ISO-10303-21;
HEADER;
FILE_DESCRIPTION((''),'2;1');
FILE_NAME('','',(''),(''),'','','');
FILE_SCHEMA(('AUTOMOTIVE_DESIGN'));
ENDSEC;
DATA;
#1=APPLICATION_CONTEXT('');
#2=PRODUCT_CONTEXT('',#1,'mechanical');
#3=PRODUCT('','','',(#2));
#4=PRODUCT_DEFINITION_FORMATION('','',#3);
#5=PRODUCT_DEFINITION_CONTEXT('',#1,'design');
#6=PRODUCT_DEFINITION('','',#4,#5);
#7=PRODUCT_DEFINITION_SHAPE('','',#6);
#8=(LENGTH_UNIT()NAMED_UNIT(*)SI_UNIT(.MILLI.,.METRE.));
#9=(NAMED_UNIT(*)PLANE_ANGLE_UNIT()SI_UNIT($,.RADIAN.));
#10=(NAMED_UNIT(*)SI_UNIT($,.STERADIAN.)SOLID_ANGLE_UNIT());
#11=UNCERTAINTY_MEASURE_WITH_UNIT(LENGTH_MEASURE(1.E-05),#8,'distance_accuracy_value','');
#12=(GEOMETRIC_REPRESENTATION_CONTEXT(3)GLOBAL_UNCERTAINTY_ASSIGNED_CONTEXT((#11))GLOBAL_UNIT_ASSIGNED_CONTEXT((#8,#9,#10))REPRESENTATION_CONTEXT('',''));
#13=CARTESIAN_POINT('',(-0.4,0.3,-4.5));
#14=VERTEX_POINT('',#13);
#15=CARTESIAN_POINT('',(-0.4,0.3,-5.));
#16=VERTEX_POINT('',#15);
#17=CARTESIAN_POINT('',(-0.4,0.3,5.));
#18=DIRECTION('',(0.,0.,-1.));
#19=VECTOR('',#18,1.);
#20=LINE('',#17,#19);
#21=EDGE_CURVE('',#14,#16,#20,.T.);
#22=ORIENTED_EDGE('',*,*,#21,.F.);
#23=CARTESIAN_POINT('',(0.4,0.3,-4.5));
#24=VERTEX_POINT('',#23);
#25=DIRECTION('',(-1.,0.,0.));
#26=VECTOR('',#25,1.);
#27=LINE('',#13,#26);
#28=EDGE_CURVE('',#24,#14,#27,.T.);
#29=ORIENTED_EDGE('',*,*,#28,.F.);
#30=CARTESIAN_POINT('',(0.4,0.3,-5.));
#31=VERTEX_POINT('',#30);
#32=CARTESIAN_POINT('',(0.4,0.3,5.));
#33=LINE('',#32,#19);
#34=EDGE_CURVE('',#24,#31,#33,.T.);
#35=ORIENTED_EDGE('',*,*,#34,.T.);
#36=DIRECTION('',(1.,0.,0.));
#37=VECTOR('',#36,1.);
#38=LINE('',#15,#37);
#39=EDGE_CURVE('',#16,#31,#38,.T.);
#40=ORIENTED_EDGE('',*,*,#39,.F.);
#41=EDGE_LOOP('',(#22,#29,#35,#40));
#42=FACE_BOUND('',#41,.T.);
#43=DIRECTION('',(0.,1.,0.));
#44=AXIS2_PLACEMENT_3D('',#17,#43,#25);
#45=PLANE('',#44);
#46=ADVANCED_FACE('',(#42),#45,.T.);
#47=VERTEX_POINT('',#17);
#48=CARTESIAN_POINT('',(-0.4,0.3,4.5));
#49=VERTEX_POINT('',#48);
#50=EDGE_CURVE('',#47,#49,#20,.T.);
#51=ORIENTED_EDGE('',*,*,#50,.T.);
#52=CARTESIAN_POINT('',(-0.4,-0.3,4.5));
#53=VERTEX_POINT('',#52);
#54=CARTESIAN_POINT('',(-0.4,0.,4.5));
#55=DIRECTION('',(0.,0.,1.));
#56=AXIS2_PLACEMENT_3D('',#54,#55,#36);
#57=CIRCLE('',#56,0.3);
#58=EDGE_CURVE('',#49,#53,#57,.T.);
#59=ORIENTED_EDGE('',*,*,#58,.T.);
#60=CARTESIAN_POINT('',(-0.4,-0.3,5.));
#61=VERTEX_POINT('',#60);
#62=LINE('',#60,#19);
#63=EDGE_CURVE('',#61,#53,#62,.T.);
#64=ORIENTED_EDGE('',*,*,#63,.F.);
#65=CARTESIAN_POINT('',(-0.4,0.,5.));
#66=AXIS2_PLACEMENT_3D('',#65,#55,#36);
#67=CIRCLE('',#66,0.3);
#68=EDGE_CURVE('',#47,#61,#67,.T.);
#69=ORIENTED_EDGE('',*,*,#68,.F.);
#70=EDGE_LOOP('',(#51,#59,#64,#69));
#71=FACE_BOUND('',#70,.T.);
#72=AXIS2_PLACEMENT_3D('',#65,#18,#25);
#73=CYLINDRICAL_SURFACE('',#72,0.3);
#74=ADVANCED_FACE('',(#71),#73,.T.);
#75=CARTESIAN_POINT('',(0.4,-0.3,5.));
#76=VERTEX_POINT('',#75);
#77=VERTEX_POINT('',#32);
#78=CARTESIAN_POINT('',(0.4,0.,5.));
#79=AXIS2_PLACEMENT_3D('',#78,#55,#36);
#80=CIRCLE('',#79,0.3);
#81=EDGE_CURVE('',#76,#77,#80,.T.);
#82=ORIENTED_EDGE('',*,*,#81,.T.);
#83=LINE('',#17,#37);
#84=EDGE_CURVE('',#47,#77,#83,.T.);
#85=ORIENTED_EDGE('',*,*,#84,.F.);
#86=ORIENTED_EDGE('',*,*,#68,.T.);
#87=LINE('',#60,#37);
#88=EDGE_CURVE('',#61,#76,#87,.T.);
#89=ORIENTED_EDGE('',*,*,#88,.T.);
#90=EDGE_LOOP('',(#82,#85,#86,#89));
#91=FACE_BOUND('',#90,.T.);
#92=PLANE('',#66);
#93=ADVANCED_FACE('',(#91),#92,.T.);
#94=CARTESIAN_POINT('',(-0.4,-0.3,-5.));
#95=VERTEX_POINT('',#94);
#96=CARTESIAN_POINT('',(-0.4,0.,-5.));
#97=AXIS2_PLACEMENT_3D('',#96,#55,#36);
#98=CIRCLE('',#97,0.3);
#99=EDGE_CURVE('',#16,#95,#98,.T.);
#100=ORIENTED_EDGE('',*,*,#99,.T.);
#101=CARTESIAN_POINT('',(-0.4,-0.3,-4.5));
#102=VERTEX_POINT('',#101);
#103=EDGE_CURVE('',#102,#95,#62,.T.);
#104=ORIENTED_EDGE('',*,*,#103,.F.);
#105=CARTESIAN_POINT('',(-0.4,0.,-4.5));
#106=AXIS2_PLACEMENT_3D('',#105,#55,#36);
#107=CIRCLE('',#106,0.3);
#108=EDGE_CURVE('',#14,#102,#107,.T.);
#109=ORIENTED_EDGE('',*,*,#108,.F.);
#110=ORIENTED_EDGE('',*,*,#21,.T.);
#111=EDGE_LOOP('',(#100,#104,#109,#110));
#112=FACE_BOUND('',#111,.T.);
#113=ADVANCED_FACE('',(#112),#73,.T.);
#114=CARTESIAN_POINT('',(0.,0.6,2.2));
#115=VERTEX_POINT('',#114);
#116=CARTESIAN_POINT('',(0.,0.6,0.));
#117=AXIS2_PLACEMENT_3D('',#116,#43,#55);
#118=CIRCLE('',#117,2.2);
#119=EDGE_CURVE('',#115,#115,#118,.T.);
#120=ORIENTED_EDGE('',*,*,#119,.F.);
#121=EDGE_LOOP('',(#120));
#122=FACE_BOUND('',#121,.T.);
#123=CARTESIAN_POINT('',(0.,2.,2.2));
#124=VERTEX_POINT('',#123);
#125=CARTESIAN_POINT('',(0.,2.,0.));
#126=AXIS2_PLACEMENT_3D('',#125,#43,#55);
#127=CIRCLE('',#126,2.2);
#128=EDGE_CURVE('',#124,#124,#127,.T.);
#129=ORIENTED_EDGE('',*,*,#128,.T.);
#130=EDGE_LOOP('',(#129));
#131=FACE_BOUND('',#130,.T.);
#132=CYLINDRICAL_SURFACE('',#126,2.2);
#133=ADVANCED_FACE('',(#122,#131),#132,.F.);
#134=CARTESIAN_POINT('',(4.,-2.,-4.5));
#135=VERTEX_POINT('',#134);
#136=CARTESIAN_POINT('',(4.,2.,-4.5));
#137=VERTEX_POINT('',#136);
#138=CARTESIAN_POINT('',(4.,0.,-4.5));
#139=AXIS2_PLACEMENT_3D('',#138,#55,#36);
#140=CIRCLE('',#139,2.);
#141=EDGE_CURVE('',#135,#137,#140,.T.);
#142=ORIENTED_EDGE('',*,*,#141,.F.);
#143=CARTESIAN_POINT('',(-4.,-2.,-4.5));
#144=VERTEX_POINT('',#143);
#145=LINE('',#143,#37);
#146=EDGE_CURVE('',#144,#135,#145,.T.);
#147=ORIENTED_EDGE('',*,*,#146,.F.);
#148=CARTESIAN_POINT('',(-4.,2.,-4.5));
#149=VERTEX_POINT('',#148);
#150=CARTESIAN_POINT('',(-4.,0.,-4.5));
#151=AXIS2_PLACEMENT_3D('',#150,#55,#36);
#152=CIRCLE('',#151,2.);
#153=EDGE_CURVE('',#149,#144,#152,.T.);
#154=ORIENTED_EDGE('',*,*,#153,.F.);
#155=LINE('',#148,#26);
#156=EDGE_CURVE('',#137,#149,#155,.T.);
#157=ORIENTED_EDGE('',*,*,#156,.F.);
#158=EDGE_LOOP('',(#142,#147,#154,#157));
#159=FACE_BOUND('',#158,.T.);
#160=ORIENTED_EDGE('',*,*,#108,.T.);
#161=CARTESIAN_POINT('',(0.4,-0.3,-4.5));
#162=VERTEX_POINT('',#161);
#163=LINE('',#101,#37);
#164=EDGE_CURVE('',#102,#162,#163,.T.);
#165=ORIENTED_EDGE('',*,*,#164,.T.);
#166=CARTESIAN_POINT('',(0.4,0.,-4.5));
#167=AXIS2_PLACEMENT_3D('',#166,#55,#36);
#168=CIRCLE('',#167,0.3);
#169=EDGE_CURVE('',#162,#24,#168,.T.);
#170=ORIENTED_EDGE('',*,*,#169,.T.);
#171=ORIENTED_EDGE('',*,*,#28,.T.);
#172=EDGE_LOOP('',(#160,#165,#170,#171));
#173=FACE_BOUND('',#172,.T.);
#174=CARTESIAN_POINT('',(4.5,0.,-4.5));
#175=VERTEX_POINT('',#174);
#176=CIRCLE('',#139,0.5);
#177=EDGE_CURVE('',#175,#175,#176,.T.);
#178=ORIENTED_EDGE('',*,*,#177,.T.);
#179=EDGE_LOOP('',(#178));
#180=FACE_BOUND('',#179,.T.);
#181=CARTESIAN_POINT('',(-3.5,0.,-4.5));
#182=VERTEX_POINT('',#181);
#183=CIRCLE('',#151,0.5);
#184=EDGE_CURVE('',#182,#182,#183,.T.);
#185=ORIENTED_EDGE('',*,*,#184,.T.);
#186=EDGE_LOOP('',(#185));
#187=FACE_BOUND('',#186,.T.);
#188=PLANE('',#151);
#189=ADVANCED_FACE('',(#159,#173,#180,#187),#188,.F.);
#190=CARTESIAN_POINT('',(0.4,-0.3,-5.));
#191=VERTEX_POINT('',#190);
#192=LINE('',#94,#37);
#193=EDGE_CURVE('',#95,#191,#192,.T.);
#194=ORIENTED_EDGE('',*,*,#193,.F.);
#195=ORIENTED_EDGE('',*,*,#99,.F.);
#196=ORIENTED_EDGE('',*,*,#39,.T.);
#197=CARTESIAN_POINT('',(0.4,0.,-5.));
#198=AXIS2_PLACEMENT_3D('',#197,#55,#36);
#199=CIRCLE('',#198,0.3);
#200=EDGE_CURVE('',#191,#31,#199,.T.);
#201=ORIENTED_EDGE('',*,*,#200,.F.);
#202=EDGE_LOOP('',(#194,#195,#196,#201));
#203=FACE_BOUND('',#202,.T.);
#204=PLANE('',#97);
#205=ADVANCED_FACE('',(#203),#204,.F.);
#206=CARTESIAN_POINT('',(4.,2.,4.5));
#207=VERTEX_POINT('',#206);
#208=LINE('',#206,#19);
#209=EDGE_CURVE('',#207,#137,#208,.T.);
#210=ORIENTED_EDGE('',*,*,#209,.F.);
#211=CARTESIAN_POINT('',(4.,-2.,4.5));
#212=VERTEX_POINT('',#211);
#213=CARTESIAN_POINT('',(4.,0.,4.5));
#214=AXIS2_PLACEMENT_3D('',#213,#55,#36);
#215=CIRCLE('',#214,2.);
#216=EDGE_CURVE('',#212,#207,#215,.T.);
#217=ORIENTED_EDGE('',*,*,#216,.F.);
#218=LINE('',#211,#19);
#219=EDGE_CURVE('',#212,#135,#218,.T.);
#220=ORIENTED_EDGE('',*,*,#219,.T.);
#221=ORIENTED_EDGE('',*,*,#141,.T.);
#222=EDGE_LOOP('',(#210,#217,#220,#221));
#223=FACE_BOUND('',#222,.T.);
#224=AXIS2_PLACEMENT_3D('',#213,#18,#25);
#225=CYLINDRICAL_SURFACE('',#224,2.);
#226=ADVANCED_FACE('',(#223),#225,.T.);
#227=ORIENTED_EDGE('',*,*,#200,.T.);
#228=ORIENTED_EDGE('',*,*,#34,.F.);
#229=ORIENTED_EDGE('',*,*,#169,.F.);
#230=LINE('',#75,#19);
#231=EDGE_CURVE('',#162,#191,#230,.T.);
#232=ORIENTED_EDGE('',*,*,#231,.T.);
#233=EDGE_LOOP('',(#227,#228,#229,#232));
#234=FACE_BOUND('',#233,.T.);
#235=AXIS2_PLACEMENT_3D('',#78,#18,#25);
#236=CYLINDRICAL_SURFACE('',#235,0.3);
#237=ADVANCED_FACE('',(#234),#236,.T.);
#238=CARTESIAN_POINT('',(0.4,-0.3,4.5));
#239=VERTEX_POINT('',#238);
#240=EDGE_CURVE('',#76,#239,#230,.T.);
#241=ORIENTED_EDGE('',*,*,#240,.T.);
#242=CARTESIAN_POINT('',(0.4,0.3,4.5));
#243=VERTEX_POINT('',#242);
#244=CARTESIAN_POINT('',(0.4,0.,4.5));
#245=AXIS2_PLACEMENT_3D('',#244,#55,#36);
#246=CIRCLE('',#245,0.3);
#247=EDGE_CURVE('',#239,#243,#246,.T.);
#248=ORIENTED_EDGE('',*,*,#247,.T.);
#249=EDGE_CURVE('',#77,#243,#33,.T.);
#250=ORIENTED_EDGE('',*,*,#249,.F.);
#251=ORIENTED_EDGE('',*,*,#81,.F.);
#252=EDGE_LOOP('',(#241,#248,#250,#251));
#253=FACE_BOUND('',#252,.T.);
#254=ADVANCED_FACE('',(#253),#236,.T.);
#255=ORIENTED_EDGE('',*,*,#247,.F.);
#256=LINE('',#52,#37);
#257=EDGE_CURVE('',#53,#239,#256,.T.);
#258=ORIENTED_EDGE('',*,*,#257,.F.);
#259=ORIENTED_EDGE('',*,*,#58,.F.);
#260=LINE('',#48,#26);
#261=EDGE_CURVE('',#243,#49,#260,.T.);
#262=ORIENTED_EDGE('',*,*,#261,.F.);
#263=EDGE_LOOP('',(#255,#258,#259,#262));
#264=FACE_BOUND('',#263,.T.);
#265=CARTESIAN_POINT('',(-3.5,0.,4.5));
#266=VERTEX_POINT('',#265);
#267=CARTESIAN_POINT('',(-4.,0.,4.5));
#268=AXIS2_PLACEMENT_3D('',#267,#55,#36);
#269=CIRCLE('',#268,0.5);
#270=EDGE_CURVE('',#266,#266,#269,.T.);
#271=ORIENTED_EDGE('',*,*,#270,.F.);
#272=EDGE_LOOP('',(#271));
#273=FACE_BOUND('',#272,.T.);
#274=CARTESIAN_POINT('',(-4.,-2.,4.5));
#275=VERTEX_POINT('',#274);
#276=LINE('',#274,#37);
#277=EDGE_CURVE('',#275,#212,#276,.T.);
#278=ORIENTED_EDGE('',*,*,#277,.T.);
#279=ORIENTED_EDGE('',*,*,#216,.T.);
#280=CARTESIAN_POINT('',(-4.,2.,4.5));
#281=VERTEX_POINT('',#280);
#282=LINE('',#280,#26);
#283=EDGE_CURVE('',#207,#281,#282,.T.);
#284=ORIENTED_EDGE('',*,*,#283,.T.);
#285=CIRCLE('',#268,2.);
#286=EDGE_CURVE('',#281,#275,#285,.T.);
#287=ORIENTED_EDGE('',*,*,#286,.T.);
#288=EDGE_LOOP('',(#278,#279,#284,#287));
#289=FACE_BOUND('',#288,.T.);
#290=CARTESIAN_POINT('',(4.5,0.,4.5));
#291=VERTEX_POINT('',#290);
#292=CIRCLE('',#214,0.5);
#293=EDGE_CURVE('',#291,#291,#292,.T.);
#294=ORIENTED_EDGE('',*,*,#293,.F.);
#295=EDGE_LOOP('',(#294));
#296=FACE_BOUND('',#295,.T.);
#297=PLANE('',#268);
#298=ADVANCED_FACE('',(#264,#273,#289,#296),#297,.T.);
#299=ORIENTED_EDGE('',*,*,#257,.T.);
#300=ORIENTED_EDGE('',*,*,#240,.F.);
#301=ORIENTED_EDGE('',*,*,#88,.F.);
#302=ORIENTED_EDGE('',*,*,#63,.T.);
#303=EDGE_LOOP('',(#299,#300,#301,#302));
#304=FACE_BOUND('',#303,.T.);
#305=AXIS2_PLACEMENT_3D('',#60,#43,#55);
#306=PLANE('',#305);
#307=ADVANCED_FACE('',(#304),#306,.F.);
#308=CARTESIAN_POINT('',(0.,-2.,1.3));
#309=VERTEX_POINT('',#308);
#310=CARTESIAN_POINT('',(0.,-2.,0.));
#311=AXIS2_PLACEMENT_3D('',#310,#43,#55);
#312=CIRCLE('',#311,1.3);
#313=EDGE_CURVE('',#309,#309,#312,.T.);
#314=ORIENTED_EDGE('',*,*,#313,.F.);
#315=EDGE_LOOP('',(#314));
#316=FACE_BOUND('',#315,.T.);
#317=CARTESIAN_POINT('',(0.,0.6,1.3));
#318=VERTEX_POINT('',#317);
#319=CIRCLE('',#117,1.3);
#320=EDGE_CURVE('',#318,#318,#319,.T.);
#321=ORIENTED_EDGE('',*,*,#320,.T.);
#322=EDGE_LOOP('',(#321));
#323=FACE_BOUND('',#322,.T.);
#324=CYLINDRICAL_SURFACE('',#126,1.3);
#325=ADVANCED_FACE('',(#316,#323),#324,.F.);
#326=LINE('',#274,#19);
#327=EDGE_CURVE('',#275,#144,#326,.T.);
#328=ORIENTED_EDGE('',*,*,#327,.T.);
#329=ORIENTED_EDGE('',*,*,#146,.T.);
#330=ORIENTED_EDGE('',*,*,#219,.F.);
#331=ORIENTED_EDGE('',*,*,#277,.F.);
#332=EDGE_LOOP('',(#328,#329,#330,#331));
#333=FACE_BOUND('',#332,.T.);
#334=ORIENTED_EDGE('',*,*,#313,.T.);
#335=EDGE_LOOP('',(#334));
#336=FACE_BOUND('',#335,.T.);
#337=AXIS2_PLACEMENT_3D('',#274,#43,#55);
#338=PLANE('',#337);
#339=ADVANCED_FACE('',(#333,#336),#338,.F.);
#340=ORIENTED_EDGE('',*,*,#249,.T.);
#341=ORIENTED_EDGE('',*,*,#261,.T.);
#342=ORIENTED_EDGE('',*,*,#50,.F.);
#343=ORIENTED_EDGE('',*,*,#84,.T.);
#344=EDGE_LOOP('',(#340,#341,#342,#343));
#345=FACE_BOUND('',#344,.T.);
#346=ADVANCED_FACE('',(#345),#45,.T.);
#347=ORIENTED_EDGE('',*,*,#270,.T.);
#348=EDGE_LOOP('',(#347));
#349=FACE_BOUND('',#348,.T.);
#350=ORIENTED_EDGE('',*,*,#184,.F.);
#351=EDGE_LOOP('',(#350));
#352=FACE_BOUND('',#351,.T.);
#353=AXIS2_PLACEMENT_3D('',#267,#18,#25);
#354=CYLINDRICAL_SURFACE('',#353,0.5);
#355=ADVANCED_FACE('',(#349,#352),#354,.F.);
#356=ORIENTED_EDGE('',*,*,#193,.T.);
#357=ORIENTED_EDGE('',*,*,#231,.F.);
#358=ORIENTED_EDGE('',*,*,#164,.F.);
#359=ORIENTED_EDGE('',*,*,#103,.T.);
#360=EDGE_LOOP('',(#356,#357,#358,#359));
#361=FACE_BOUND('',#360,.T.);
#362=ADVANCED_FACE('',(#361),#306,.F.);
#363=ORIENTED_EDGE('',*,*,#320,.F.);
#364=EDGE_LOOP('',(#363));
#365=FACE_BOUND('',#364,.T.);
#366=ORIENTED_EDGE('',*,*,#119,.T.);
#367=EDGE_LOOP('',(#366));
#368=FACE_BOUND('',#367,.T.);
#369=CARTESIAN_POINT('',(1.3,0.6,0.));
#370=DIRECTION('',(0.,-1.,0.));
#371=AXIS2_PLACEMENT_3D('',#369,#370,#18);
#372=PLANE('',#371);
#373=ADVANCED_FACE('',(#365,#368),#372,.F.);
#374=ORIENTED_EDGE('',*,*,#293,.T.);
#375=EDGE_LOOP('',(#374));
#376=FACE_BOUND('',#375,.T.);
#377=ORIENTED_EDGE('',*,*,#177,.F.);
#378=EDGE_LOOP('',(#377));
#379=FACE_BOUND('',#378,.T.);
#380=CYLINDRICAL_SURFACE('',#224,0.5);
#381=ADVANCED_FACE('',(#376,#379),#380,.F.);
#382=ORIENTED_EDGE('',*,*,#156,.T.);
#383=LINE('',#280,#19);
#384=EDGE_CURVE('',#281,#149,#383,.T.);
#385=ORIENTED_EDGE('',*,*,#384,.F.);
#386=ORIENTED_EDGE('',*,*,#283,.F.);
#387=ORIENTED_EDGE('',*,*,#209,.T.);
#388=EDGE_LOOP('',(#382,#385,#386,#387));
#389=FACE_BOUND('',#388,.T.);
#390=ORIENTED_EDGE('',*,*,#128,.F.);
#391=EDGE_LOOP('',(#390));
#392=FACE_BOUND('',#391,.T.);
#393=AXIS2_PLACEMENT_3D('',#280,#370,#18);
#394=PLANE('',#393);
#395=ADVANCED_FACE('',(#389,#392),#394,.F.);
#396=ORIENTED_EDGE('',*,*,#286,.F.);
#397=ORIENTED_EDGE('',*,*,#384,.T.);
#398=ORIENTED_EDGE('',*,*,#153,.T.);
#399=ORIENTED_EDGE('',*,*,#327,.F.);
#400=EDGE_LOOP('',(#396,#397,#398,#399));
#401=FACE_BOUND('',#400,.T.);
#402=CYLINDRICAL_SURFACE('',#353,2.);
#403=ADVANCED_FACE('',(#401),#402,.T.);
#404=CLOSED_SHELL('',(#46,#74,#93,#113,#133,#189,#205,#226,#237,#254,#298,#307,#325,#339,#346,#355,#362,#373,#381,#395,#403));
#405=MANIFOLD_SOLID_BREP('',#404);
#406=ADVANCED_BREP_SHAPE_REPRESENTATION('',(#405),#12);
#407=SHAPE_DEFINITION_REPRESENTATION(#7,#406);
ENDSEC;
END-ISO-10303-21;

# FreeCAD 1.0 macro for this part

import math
import FreeCAD as App
import Part
import Sketcher

V = App.Vector

doc = App.newDocument("Part")
params = doc.addObject("Spreadsheet::Sheet", "Params")
for row, (alias, value) in enumerate([
    ("sketch1_diameter", "1 mm"),
    ("sketch1_radius", "2 mm"),
    ("sketch1_radius2", "0.3 mm"),
    ("sketch1_width", "8 mm"),
    ("sketch1_width2", "0.8 mm"),
    ("pad1_length", "9 mm"),
    ("sketch2_radius", "0.3 mm"),
    ("sketch2_width", "0.8 mm"),
    ("pad2_length", "10 mm"),
    ("sketch3_diameter", "2.6 mm"),
    ("hole_diameter", "2.6 mm"),
    ("hole_cbore_diameter", "4.4 mm"),
    ("hole_cbore_depth", "1.4 mm"),
], start=1):
    params.set(f"A{row}", alias)
    params.set(f"B{row}", "=" + value)
    params.setAlias(f"B{row}", alias)

body = doc.addObject("PartDesign::Body", "Body")

sketch1 = body.newObject("Sketcher::SketchObject", "Sketch")
sketch1.AttachmentSupport = (doc.getObject("XY_Plane"), [""])
sketch1.MapMode = "FlatFace"
sketch1.addGeometry([
    Part.LineSegment(V(4, 2, 0), V(-4, 2, 0)),
    Part.ArcOfCircle(Part.Circle(V(-4, 0, 0), V(0, 0, 1), 2), math.radians(90), math.radians(270)),
    Part.LineSegment(V(-4, -2, 0), V(4, -2, 0)),
    Part.ArcOfCircle(Part.Circle(V(4, 0, 0), V(0, 0, 1), 2), math.radians(-90), math.radians(90)),
    Part.LineSegment(V(-0.4, 0.3, 0), V(0.4, 0.3, 0)),
    Part.ArcOfCircle(Part.Circle(V(0.4, 0, 0), V(0, 0, 1), 0.3), math.radians(-90), math.radians(90)),
    Part.LineSegment(V(0.4, -0.3, 0), V(-0.4, -0.3, 0)),
    Part.ArcOfCircle(Part.Circle(V(-0.4, 0, 0), V(0, 0, 1), 0.3), math.radians(90), math.radians(270)),
    Part.Circle(V(4, 0, 0), V(0, 0, 1), 0.5),
    Part.Circle(V(-4, 0, 0), V(0, 0, 1), 0.5),
], False)
sketch1.addConstraint([
    Sketcher.Constraint("Tangent", 0, 2, 1, 1),
    Sketcher.Constraint("Tangent", 1, 2, 2, 1),
    Sketcher.Constraint("Tangent", 2, 2, 3, 1),
    Sketcher.Constraint("Tangent", 3, 2, 0, 1),
    Sketcher.Constraint("Tangent", 4, 2, 5, 2),
    Sketcher.Constraint("Tangent", 5, 1, 6, 1),
    Sketcher.Constraint("Tangent", 6, 2, 7, 2),
    Sketcher.Constraint("Tangent", 7, 1, 4, 1),
    Sketcher.Constraint("Horizontal", 0),
    Sketcher.Constraint("Horizontal", 2),
    Sketcher.Constraint("Horizontal", 4),
    Sketcher.Constraint("Horizontal", 6),
    Sketcher.Constraint("Coincident", 8, 3, 3, 3),
    Sketcher.Constraint("Coincident", 9, 3, 1, 3),
    Sketcher.Constraint("Equal", 8, 9),
    Sketcher.Constraint("Symmetric", 1, 3, 3, 3, -1, 1),
    Sketcher.Constraint("Symmetric", 5, 3, 7, 3, -1, 1),
    Sketcher.Constraint("Diameter", 8, 1.0),
    Sketcher.Constraint("Radius", 1, 2.0),
    Sketcher.Constraint("Radius", 5, 0.3),
    Sketcher.Constraint("DistanceX", 0, 2, 0, 1, 8.0),
    Sketcher.Constraint("DistanceX", 4, 1, 4, 2, 0.8),
])
sketch1.setExpression("Constraints[17]", "Params.sketch1_diameter")
sketch1.setExpression("Constraints[18]", "Params.sketch1_radius")
sketch1.setExpression("Constraints[19]", "Params.sketch1_radius2")
sketch1.setExpression("Constraints[20]", "Params.sketch1_width")
sketch1.setExpression("Constraints[21]", "Params.sketch1_width2")
pad1 = body.newObject("PartDesign::Pad", "Pad")
pad1.Profile = sketch1
pad1.setExpression("Length", "Params.pad1_length")
pad1.Midplane = True

sketch2 = body.newObject("Sketcher::SketchObject", "Sketch001")
sketch2.AttachmentSupport = (doc.getObject("XY_Plane"), [""])
sketch2.MapMode = "FlatFace"
sketch2.addGeometry([
    Part.LineSegment(V(0.4, 0.3, 0), V(-0.4, 0.3, 0)),
    Part.ArcOfCircle(Part.Circle(V(-0.4, 0, 0), V(0, 0, 1), 0.3), math.radians(90), math.radians(270)),
    Part.LineSegment(V(-0.4, -0.3, 0), V(0.4, -0.3, 0)),
    Part.ArcOfCircle(Part.Circle(V(0.4, 0, 0), V(0, 0, 1), 0.3), math.radians(-90), math.radians(90)),
], False)
sketch2.addConstraint([
    Sketcher.Constraint("Tangent", 0, 2, 1, 1),
    Sketcher.Constraint("Tangent", 1, 2, 2, 1),
    Sketcher.Constraint("Tangent", 2, 2, 3, 1),
    Sketcher.Constraint("Tangent", 3, 2, 0, 1),
    Sketcher.Constraint("Horizontal", 0),
    Sketcher.Constraint("Horizontal", 2),
    Sketcher.Constraint("Symmetric", 1, 3, 3, 3, -1, 1),
    Sketcher.Constraint("Radius", 1, 0.3),
    Sketcher.Constraint("DistanceX", 0, 2, 0, 1, 0.8),
])
sketch2.setExpression("Constraints[7]", "Params.sketch2_radius")
sketch2.setExpression("Constraints[8]", "Params.sketch2_width")
pad2 = body.newObject("PartDesign::Pad", "Pad001")
pad2.Profile = sketch2
pad2.setExpression("Length", "Params.pad2_length")
pad2.Midplane = True

sketch3 = body.newObject("Sketcher::SketchObject", "Sketch002")
sketch3.AttachmentSupport = (doc.getObject("XZ_Plane"), [""])
sketch3.MapMode = "FlatFace"
sketch3.AttachmentOffset = App.Placement(V(0, 0, -2), App.Rotation())
sketch3.addGeometry(Part.Circle(V(0, 0, 0), V(0, 0, 1), 1.3), False)
sketch3.addConstraint([
    Sketcher.Constraint("Coincident", 0, 3, -1, 1),
    Sketcher.Constraint("Diameter", 0, 2.6),
])
sketch3.setExpression("Constraints[1]", "Params.sketch3_diameter")
doc.recompute()
hole = body.newObject("PartDesign::Hole", "Hole")
hole.Profile = sketch3
hole.ThreadType = "None"
hole.setExpression("Diameter", "Params.hole_diameter")
hole.DepthType = "ThroughAll"
hole.HoleCutType = "Counterbore"
hole.setExpression("HoleCutDiameter", "Params.hole_cbore_diameter")
hole.setExpression("HoleCutDepth", "Params.hole_cbore_depth")
hole.Reversed = True

doc.recompute()
